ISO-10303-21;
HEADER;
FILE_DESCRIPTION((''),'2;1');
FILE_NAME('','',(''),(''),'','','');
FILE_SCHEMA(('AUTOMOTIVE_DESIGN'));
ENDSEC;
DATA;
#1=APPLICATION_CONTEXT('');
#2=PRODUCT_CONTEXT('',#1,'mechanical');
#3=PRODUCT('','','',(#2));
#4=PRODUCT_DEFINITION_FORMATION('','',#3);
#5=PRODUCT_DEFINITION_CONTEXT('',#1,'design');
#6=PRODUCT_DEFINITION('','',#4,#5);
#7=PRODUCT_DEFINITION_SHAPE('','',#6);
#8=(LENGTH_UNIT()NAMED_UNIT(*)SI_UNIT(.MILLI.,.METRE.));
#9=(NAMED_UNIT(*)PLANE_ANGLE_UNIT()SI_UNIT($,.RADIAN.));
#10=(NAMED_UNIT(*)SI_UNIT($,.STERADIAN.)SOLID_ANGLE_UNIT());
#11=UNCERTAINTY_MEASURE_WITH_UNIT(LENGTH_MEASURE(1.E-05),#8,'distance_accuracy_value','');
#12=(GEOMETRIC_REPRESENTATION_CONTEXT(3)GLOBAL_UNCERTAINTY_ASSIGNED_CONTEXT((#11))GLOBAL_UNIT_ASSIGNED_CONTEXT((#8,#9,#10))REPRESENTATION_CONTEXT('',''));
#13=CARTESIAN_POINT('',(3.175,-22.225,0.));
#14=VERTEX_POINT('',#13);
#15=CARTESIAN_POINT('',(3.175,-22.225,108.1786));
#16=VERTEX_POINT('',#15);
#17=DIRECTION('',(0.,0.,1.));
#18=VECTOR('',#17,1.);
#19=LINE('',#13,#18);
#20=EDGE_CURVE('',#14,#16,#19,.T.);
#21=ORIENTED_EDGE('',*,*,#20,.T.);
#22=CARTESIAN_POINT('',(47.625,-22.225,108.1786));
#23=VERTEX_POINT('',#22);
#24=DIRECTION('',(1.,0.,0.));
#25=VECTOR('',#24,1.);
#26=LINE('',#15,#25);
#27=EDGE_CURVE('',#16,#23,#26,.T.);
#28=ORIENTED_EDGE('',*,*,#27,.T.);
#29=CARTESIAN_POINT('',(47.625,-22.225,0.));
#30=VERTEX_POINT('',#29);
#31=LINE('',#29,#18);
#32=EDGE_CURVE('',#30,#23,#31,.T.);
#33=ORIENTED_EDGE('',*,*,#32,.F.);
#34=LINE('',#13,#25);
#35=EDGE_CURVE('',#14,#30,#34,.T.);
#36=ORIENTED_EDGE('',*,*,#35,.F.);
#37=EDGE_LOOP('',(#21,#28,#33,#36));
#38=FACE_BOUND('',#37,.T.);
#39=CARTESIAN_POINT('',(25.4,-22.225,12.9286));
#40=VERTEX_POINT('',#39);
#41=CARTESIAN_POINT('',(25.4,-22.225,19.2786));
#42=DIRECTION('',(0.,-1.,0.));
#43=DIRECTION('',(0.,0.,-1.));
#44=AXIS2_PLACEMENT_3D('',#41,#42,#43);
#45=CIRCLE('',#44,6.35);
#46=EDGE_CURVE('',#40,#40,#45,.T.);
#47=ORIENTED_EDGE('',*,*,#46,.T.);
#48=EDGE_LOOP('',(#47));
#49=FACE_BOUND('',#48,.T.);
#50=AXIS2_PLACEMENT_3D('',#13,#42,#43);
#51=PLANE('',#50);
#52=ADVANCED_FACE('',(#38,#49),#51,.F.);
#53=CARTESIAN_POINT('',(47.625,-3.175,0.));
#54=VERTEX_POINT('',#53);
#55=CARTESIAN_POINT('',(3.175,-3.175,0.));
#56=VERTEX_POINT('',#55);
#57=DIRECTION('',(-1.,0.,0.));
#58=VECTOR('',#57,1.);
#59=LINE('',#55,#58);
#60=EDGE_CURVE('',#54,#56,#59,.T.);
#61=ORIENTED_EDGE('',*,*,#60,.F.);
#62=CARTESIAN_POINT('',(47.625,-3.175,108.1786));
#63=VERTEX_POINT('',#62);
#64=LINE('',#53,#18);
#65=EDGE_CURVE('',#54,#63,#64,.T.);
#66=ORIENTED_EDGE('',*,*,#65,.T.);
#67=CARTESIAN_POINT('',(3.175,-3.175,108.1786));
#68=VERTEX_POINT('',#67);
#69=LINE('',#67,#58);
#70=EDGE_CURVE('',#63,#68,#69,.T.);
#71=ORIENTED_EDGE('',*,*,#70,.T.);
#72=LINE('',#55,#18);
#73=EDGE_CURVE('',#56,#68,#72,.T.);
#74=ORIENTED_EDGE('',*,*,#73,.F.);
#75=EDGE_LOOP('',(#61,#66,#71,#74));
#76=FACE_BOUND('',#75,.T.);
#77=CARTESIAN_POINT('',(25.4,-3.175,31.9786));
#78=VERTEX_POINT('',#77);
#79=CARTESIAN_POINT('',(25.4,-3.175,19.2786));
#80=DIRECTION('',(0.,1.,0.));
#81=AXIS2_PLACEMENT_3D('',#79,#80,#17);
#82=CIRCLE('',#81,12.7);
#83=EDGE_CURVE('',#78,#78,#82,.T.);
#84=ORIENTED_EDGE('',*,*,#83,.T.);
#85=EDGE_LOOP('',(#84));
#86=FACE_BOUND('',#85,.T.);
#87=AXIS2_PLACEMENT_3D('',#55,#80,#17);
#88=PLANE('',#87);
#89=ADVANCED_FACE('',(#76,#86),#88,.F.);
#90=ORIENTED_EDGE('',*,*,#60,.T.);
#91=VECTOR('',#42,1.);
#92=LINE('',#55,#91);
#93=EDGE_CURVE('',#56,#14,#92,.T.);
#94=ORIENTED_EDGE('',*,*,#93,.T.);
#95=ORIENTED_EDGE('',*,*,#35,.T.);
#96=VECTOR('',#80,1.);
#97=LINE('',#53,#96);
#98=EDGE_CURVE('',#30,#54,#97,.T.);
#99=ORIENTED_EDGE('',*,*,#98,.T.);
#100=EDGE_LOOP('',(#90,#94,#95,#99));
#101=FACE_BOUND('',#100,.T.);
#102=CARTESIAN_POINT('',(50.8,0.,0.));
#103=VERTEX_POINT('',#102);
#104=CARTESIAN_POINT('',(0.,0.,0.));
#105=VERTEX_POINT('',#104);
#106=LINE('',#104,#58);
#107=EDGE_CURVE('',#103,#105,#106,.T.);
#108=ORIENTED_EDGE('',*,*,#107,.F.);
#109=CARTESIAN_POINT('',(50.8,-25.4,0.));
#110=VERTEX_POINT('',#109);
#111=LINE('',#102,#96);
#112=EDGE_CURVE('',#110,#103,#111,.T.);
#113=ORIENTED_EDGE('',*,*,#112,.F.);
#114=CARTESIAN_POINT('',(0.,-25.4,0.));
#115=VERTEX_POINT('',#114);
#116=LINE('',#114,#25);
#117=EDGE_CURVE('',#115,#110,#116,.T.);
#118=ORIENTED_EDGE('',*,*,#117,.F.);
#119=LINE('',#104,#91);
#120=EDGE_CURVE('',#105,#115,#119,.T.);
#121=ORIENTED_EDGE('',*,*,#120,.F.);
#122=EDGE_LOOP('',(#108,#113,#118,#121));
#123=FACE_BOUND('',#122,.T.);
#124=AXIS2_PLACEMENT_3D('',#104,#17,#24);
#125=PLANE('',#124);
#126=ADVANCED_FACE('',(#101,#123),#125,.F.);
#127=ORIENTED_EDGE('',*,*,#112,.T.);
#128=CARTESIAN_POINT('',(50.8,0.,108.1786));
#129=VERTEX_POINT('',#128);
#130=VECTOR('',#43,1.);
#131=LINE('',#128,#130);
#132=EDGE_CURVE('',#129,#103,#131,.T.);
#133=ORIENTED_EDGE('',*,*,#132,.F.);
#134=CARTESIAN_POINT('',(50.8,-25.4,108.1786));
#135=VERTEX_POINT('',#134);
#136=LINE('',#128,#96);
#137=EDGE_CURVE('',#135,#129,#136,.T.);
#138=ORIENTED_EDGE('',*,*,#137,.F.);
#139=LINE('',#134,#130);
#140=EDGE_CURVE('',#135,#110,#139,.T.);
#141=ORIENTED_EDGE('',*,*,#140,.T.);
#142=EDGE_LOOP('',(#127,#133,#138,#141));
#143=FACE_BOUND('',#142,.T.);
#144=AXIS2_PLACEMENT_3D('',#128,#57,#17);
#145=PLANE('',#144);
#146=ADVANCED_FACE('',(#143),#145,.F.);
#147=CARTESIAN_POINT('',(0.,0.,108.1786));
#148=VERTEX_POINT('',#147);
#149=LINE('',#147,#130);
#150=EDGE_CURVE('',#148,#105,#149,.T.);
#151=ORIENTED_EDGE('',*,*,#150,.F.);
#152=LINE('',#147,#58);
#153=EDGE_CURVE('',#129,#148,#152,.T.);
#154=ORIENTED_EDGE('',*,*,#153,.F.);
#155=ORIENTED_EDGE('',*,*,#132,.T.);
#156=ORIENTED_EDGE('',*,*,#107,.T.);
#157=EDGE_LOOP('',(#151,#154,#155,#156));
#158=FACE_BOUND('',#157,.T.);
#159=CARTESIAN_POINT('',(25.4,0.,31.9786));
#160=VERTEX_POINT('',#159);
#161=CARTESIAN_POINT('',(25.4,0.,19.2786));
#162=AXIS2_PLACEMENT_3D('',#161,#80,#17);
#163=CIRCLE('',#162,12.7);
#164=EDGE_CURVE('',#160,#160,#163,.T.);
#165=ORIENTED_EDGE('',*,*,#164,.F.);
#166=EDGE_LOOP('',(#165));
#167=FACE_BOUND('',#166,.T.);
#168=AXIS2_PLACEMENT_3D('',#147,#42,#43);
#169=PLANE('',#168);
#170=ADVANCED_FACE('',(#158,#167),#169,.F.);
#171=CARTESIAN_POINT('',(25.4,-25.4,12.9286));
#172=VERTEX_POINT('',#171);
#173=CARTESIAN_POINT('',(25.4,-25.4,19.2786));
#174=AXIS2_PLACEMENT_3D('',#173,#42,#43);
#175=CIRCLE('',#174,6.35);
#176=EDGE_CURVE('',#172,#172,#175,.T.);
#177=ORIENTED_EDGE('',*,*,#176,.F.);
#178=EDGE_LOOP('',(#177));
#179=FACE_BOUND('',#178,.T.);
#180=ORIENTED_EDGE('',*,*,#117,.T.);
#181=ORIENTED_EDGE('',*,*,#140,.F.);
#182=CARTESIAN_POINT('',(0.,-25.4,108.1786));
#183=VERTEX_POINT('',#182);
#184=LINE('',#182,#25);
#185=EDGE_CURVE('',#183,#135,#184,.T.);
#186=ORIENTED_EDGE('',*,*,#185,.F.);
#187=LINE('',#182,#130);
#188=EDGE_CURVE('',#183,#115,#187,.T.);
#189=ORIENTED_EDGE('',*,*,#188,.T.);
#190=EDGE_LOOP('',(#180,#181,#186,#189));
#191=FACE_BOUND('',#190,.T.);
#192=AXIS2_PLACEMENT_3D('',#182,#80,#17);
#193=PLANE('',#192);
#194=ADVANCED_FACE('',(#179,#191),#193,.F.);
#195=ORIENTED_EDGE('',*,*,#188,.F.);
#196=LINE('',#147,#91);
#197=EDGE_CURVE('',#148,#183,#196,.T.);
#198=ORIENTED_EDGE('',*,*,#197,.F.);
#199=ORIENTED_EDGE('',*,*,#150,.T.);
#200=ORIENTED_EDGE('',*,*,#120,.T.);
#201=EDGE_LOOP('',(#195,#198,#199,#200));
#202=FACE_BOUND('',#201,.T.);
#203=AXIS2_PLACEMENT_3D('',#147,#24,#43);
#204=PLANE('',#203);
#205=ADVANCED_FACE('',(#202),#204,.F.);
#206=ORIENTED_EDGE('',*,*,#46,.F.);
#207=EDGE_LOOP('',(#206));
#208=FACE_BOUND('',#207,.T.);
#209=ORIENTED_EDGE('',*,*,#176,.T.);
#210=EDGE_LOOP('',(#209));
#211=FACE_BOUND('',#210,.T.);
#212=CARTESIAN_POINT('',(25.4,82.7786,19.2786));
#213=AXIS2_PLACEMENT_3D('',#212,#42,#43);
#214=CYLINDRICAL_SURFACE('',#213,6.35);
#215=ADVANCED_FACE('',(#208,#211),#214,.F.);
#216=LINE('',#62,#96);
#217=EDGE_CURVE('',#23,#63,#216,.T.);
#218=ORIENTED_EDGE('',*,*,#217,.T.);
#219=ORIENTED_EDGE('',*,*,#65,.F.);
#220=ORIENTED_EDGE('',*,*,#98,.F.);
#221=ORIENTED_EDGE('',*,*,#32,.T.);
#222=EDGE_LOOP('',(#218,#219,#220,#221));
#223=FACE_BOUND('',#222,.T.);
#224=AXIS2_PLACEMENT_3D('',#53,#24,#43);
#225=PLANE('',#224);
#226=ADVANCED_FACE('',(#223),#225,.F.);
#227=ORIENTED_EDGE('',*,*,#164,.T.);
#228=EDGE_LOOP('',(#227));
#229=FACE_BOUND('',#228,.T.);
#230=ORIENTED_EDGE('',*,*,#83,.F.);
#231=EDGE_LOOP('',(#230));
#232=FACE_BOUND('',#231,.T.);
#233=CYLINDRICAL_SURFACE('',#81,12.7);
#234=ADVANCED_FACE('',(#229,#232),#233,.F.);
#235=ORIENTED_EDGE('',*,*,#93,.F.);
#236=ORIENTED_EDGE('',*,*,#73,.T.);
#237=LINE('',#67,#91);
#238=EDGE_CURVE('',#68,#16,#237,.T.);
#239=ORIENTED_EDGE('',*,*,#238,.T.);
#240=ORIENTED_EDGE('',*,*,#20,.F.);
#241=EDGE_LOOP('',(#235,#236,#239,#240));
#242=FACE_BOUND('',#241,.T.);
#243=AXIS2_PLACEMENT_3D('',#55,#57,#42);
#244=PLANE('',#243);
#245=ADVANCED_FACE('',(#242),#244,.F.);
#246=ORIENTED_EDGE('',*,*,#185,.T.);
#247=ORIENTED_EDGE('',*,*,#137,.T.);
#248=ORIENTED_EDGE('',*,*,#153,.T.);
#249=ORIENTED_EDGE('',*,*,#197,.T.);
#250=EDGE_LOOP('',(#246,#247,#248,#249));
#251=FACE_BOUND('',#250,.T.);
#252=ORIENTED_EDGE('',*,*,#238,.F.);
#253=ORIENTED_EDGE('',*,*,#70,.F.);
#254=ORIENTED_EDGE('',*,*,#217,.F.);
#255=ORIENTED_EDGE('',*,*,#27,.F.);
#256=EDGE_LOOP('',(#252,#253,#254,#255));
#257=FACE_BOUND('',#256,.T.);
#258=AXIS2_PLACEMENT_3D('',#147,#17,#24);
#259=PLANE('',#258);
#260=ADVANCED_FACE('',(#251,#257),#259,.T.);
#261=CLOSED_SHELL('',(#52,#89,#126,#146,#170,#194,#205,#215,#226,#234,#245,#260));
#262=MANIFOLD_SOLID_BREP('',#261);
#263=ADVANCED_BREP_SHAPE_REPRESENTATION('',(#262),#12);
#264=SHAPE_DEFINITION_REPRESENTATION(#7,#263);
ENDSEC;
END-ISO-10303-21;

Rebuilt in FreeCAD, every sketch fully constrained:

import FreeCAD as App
import Part
import Sketcher

V = App.Vector
Q = App.Units.Quantity


def add_polygon(sketch, points):
    """Adds a closed chain of lines whose ends are joined by coincident constraints."""
    first, n = sketch.GeometryCount, len(points)
    for a, b in zip(points, points[1:] + points[:1]):
        sketch.addGeometry(Part.LineSegment(App.Vector(*a, 0), App.Vector(*b, 0)), False)
    for i in range(n):
        sketch.addConstraint(Sketcher.Constraint("Coincident", first + i, 2, first + (i + 1) % n, 1))

doc = App.newDocument("Part")
body = doc.addObject("PartDesign::Body", "Body")

sketch1 = body.newObject("Sketcher::SketchObject", "Sketch")
sketch1.AttachmentSupport = (doc.getObject("XY_Plane"), [""])
sketch1.MapMode = "FlatFace"
add_polygon(sketch1, [(0, 0), (0, -25.4), (50.8, -25.4), (50.8, 0)])
sketch1.addConstraint([
    Sketcher.Constraint("Vertical", 0),
    Sketcher.Constraint("Horizontal", 1),
    Sketcher.Constraint("Vertical", 2),
    Sketcher.Constraint("Horizontal", 3),
    Sketcher.Constraint("Coincident", 3, 2, -1, 1),
    Sketcher.Constraint("DistanceX", 1, 1, 1, 2, Q("2 in")),
    Sketcher.Constraint("DistanceY", 0, 2, 0, 1, Q("1 in")),
])
pad1 = body.newObject("PartDesign::Pad", "Pad")
pad1.Profile = sketch1
pad1.Length = Q("4.259 in")

sketch2 = body.newObject("Sketcher::SketchObject", "Sketch001")
sketch2.AttachmentSupport = (doc.getObject("XY_Plane"), [""])
sketch2.MapMode = "FlatFace"
sketch2.AttachmentOffset = App.Placement(V(0, 0, 4.259 * 25.4), App.Rotation())
add_polygon(sketch2, [(3.175, -3.175), (3.175, -22.225), (47.625, -22.225), (47.625, -3.175)])
sketch2.addConstraint([
    Sketcher.Constraint("Vertical", 0),
    Sketcher.Constraint("Horizontal", 1),
    Sketcher.Constraint("Vertical", 2),
    Sketcher.Constraint("Horizontal", 3),
    Sketcher.Constraint("DistanceX", 1, 1, 1, 2, Q("1.75 in")),
    Sketcher.Constraint("DistanceY", 0, 2, 0, 1, Q("0.75 in")),
    Sketcher.Constraint("DistanceX", -1, 1, 0, 2, Q("0.125 in")),
    Sketcher.Constraint("DistanceY", 0, 2, -1, 1, Q("0.875 in")),
])
pocket1 = body.newObject("PartDesign::Pocket", "Pocket")
pocket1.Profile = sketch2
pocket1.Type = "ThroughAll"

sketch3 = body.newObject("Sketcher::SketchObject", "Sketch002")
sketch3.AttachmentSupport = (doc.getObject("XZ_Plane"), [""])
sketch3.MapMode = "FlatFace"
sketch3.addGeometry(Part.Circle(V(25.4, 19.2786, 0), V(0, 0, 1), 12.7), False)
sketch3.addConstraint([
    Sketcher.Constraint("Diameter", 0, Q("1 in")),
    Sketcher.Constraint("DistanceX", -1, 1, 0, 3, Q("1 in")),
    Sketcher.Constraint("DistanceY", -1, 1, 0, 3, Q("0.759 in")),
])
pocket2 = body.newObject("PartDesign::Pocket", "Pocket001")
pocket2.Profile = sketch3
pocket2.Length = Q("0.125 in")
pocket2.Reversed = True

sketch4 = body.newObject("Sketcher::SketchObject", "Sketch003")
sketch4.AttachmentSupport = (doc.getObject("XZ_Plane"), [""])
sketch4.MapMode = "FlatFace"
sketch4.AttachmentOffset = App.Placement(V(0, 0, 1 * 25.4), App.Rotation())
sketch4.addGeometry(Part.Circle(V(25.4, 19.2786, 0), V(0, 0, 1), 6.35), False)
sketch4.addConstraint([
    Sketcher.Constraint("Diameter", 0, Q("0.5 in")),
    Sketcher.Constraint("DistanceX", -1, 1, 0, 3, Q("1 in")),
    Sketcher.Constraint("DistanceY", -1, 1, 0, 3, Q("0.759 in")),
])
pocket3 = body.newObject("PartDesign::Pocket", "Pocket002")
pocket3.Profile = sketch4
pocket3.Length = Q("4.259 in")

doc.recompute()
